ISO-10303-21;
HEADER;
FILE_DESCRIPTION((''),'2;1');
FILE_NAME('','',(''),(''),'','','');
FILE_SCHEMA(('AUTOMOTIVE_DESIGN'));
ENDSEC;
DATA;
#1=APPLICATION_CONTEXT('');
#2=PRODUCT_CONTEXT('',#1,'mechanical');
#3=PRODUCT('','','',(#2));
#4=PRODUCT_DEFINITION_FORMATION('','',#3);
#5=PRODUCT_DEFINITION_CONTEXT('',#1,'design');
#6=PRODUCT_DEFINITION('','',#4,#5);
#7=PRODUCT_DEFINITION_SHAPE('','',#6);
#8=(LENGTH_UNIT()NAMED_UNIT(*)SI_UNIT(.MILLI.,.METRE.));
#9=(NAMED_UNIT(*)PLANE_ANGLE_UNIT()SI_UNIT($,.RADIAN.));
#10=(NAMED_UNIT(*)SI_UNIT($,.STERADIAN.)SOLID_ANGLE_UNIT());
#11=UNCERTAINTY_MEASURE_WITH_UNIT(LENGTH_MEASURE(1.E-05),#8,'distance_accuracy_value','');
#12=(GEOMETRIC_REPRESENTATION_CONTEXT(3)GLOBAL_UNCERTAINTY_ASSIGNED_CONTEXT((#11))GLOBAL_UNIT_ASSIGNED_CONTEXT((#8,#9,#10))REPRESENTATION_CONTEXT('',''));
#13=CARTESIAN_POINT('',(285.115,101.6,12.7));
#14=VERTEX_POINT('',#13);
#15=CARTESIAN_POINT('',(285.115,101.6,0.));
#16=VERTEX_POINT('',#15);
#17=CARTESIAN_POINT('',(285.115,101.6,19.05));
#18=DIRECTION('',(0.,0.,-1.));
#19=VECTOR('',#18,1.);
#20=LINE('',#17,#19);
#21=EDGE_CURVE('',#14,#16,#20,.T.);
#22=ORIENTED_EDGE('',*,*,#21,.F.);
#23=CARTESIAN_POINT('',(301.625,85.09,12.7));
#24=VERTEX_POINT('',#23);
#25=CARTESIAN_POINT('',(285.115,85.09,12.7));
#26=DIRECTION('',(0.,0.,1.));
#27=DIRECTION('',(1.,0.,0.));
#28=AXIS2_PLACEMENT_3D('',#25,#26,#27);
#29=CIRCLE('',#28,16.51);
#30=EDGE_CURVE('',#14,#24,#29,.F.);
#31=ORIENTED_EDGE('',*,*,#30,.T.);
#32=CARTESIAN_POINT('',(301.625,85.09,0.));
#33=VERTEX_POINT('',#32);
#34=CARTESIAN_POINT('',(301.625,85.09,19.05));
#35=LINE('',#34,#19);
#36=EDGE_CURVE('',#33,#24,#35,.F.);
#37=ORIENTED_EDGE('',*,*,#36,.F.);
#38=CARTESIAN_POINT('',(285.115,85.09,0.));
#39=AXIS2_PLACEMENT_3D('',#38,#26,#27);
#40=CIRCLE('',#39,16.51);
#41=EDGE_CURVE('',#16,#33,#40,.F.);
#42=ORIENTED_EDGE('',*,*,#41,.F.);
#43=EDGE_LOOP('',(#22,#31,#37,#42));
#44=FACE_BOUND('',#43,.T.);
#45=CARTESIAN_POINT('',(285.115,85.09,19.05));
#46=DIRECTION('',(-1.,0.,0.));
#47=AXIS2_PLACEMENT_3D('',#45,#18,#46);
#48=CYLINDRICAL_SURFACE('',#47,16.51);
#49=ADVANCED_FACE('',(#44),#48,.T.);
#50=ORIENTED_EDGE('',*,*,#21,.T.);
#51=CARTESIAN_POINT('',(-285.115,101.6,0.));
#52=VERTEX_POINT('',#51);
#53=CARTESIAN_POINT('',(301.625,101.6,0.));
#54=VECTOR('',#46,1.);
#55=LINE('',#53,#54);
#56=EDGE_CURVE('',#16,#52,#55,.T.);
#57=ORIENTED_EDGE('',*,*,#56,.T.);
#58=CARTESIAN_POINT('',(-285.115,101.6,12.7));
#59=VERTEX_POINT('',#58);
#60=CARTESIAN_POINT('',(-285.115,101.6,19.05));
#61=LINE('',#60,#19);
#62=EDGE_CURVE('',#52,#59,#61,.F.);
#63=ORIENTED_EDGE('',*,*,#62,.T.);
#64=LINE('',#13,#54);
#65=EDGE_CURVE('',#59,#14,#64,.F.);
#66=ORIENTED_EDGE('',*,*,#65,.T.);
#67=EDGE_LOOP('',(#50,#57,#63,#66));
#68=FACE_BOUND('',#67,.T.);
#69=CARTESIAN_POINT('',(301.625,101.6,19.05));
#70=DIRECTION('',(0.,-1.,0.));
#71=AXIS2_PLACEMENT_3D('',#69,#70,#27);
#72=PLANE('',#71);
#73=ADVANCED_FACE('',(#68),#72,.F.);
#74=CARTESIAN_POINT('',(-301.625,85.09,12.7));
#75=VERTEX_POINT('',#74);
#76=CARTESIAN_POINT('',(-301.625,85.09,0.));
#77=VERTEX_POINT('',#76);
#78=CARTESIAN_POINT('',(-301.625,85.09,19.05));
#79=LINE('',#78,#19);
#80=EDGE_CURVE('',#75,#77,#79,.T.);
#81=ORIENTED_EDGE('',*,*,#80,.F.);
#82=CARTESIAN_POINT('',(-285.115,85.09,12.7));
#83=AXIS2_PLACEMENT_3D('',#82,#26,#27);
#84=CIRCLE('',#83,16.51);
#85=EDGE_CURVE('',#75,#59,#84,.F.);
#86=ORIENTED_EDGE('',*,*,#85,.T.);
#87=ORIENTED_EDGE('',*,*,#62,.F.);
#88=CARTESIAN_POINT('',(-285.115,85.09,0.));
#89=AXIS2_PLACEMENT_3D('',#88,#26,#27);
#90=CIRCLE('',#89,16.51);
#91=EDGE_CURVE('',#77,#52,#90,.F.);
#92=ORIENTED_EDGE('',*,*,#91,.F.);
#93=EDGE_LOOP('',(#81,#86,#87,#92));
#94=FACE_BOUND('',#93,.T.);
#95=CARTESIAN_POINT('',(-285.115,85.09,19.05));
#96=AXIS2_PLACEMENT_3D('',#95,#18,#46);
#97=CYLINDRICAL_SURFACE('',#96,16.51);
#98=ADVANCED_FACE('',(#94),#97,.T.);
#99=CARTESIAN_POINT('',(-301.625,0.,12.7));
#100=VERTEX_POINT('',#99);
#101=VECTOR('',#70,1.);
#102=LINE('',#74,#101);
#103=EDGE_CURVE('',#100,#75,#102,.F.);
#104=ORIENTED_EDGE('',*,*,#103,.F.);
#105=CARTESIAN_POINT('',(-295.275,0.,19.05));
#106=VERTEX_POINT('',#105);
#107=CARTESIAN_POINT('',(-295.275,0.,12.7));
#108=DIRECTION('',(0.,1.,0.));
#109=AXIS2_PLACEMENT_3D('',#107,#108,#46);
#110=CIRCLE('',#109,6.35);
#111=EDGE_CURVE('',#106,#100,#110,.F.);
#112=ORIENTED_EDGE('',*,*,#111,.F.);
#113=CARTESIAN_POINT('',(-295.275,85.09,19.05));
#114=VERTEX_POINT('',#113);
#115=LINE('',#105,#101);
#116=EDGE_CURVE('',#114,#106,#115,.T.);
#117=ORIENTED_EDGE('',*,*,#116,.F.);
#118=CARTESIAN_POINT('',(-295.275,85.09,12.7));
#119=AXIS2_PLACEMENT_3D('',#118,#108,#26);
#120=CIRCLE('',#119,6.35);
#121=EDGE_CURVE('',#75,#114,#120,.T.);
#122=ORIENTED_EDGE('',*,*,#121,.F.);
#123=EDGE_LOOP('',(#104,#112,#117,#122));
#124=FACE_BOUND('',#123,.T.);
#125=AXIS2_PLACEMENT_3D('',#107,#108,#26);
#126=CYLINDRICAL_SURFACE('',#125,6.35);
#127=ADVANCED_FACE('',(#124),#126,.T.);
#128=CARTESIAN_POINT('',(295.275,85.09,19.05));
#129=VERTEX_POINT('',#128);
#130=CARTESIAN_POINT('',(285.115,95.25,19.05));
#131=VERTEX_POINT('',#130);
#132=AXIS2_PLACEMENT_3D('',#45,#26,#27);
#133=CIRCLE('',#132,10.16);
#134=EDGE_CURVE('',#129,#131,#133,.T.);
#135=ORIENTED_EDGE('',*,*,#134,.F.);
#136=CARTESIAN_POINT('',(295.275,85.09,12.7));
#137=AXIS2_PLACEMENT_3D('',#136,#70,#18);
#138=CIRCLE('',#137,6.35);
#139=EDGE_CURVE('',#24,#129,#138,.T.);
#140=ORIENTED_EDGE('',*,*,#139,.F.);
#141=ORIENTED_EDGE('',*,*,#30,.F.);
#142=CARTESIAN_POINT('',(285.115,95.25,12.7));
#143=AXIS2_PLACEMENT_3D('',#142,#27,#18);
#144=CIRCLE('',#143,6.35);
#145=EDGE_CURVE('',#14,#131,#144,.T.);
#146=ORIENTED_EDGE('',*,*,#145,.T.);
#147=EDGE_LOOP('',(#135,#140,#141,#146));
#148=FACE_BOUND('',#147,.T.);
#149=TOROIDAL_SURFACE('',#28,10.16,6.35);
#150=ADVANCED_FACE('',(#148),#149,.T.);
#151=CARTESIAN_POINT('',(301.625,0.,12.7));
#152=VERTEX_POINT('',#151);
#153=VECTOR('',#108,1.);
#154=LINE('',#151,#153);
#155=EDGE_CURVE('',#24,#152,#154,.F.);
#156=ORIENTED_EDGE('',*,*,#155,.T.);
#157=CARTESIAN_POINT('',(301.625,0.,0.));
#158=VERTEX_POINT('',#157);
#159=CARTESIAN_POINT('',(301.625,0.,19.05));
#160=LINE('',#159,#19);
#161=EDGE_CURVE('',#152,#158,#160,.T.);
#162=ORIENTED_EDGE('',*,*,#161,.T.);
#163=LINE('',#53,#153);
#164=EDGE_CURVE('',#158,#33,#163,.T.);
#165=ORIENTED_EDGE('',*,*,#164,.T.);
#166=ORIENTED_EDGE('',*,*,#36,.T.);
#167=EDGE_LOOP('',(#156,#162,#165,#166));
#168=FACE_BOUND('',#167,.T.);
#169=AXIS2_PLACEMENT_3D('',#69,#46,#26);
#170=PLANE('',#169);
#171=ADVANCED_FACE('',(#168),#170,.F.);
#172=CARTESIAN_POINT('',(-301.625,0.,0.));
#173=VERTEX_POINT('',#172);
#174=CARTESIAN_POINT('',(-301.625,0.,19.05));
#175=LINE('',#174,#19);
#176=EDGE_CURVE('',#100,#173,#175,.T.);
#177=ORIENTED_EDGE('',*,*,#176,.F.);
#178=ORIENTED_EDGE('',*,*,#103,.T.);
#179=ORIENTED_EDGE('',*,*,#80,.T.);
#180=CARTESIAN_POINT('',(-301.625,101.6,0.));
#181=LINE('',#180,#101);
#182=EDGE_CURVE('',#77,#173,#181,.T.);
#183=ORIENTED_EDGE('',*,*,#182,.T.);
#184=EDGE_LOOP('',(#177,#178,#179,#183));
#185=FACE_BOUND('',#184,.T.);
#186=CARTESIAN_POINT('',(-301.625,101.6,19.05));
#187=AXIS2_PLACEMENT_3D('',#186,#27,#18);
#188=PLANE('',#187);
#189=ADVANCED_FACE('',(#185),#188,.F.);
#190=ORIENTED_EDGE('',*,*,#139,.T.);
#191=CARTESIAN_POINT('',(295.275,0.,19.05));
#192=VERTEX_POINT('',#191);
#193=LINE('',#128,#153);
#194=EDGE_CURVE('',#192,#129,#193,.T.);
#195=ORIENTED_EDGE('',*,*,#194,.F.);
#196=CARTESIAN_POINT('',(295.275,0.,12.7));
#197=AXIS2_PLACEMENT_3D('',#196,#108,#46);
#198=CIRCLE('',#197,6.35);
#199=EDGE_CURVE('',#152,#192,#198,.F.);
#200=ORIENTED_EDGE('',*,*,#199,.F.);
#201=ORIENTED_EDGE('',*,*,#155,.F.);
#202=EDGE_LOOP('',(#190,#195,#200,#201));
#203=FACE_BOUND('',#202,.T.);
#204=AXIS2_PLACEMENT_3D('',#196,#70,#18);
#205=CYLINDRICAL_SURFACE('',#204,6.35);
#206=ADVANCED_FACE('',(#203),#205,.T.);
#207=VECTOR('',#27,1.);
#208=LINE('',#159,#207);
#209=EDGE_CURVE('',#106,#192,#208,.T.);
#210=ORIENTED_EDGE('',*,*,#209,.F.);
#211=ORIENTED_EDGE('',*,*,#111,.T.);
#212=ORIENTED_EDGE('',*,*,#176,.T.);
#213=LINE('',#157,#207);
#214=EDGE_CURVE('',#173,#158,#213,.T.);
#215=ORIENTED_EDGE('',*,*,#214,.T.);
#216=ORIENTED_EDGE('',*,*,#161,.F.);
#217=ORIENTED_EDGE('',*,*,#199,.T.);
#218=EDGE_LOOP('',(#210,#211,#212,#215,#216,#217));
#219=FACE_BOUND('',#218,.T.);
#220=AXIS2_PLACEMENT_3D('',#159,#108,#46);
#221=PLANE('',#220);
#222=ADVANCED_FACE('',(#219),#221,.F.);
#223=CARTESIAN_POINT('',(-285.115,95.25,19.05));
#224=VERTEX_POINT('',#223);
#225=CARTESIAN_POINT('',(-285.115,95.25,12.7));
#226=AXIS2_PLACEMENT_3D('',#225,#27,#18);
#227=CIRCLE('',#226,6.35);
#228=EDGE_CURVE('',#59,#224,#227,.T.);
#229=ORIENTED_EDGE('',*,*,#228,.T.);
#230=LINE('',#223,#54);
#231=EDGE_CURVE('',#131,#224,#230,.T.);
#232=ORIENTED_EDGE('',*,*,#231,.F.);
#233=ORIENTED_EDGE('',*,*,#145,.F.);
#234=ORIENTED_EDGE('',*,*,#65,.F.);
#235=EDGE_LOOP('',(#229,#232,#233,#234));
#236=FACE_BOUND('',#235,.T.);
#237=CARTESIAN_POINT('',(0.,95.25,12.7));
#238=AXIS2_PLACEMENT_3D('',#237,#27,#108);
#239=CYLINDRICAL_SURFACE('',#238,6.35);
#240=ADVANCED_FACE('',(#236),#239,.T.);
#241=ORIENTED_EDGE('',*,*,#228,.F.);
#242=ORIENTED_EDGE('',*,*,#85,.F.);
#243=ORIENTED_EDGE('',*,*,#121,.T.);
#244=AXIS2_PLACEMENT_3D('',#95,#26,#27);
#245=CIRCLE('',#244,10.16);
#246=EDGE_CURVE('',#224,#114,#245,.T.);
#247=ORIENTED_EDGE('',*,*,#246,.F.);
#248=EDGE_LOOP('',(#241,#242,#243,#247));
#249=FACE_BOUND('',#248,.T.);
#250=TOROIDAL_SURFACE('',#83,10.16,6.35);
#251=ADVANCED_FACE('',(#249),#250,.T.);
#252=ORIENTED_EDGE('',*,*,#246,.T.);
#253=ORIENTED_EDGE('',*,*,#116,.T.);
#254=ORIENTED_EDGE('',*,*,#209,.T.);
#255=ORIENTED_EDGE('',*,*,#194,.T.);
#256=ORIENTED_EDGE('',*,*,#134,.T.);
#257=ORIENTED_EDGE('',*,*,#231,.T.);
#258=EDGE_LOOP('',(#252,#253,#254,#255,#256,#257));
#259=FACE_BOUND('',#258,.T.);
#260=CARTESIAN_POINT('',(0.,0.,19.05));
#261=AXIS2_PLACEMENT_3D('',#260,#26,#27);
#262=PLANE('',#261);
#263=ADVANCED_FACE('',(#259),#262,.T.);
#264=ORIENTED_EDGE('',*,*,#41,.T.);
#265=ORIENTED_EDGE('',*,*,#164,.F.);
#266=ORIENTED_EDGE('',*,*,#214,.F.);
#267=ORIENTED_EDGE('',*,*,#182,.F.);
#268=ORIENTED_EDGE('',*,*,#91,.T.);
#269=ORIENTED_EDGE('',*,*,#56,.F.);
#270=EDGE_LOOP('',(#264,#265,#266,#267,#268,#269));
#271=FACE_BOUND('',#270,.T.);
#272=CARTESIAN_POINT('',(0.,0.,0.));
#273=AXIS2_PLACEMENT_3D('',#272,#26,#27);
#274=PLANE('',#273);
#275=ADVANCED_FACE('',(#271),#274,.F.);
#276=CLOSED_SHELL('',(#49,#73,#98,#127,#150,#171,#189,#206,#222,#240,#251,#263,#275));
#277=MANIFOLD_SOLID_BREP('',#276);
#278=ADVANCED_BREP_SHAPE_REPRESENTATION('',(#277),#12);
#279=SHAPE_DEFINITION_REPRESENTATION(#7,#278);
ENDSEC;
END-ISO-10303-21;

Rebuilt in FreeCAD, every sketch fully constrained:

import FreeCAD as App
import Part
import Sketcher
from FreeCAD import Vector
Q = App.Units.Quantity


def edges_at(feature, points):
    """Names of the edges that pass closest to the given points."""
    edges = feature.Shape.Edges
    near = lambda p: min(range(len(edges)), key=lambda i: edges[i].distToShape(Part.Vertex(*p))[0])
    return sorted({f"Edge{near(p) + 1}" for p in points})

doc = App.newDocument("Part")
body = doc.addObject("PartDesign::Body", "Body")

sketch1 = body.newObject("Sketcher::SketchObject", "Sketch")
sketch1.AttachmentSupport = (doc.getObject("XY_Plane"), [""])
sketch1.MapMode = "FlatFace"
sketch1.addGeometry([
    Part.LineSegment(Vector(-302, 102, 0), Vector(-302, 0, 0)),
    Part.LineSegment(Vector(-302, 0, 0), Vector(302, 0, 0)),
    Part.LineSegment(Vector(302, 0, 0), Vector(302, 102, 0)),
    Part.LineSegment(Vector(302, 102, 0), Vector(-302, 102, 0)),
], False)
sketch1.addConstraint([
    Sketcher.Constraint("Coincident", 0, 2, 1, 1),
    Sketcher.Constraint("Coincident", 1, 2, 2, 1),
    Sketcher.Constraint("Coincident", 2, 2, 3, 1),
    Sketcher.Constraint("Coincident", 3, 2, 0, 1),
    Sketcher.Constraint("Vertical", 0),
    Sketcher.Constraint("Horizontal", 1),
    Sketcher.Constraint("Vertical", 2),
    Sketcher.Constraint("Horizontal", 3),
    Sketcher.Constraint("Symmetric", 0, 2, 1, 2, -1, 1),
    Sketcher.Constraint("DistanceY", 0, 2, 0, 1, Q("4 in")),
    Sketcher.Constraint("DistanceX", 1, 1, 1, 2, Q("23.75 in")),
])
pad1 = body.newObject("PartDesign::Pad", "Pad")
pad1.Profile = sketch1
pad1.Length = Q("0.75 in")
doc.recompute()

fillet = body.newObject("PartDesign::Fillet", "Fillet")
fillet.Base = (pad1, edges_at(pad1, [(301.625, 101.6, 9.525), (-301.625, 101.6, 9.525)]))
fillet.Radius = Q("0.65 in")
doc.recompute()

fillet2 = body.newObject("PartDesign::Fillet", "Fillet001")
fillet2.Base = (fillet, edges_at(fillet, [
    (301.625, 42.545, 19.05),
    (-301.625, 42.545, 19.05),
    (0, 101.6, 19.05),
    (296.789, 96.764, 19.05),
    (-296.789, 96.764, 19.05),
]))
fillet2.Radius = Q("0.25 in")

doc.recompute()
